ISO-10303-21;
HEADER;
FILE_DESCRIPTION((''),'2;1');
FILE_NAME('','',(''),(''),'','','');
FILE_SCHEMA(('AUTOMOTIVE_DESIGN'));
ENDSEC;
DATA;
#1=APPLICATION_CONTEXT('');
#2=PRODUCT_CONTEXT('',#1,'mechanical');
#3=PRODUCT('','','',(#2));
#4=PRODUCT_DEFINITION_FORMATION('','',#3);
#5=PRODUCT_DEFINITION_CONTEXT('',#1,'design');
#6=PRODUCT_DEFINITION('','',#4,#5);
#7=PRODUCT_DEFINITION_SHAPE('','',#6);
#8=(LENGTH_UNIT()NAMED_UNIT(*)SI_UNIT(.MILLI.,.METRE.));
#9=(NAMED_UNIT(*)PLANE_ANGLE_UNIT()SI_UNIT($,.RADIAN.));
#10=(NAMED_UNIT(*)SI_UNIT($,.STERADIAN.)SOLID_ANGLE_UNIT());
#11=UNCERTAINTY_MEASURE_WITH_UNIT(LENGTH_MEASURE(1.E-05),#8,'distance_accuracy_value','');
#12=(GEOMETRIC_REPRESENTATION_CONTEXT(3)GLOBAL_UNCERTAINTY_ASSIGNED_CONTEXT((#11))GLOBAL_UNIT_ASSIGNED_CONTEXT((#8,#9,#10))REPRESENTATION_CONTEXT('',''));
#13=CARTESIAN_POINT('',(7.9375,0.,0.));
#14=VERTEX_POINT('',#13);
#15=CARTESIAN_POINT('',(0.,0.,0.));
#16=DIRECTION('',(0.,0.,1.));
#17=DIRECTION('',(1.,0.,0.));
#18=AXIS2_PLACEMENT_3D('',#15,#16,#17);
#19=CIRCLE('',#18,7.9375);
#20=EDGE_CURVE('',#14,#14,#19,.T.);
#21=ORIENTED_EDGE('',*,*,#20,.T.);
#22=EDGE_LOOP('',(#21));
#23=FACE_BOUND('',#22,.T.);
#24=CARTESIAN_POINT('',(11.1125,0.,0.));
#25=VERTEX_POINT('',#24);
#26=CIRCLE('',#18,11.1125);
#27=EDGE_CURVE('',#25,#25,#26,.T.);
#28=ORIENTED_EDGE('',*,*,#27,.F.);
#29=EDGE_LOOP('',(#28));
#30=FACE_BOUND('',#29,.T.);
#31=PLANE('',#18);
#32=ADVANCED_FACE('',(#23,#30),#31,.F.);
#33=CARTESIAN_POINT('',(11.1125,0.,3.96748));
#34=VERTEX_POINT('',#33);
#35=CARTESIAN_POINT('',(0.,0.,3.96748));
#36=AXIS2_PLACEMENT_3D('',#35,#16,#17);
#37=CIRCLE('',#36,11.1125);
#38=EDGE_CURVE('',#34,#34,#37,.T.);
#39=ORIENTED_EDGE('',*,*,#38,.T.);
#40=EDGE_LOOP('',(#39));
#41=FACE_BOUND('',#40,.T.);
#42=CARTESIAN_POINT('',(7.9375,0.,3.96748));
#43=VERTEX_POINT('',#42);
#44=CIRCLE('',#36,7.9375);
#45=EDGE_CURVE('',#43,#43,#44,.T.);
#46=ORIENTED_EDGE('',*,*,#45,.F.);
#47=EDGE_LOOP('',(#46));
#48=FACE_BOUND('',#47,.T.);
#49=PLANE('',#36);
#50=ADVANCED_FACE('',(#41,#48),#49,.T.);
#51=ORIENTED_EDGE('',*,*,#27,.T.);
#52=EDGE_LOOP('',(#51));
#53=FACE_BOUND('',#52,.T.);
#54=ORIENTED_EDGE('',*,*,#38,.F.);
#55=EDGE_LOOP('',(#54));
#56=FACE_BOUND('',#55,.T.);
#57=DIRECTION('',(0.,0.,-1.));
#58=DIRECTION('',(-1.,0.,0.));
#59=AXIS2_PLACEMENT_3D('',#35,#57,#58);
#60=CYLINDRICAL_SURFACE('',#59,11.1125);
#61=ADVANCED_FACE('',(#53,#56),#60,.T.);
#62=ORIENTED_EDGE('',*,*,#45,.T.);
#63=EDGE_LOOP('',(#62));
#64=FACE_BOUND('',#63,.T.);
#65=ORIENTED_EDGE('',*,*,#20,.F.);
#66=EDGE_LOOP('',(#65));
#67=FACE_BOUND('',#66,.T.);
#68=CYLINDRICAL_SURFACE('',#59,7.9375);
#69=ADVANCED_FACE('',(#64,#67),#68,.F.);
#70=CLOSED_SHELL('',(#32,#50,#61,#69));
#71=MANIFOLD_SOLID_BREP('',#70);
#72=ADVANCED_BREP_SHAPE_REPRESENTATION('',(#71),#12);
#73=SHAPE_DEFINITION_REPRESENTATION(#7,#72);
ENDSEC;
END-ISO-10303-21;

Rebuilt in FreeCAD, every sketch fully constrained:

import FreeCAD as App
import Part
import Sketcher

V = App.Vector
Q = App.Units.Quantity

doc = App.newDocument("Part")
body = doc.addObject("PartDesign::Body", "Body")

sketch1 = body.newObject("Sketcher::SketchObject", "Sketch")
sketch1.AttachmentSupport = (doc.getObject("XY_Plane"), [""])
sketch1.MapMode = "FlatFace"
sketch1.addGeometry(Part.Circle(V(0, 0, 0), V(0, 0, 1), 11), False)
sketch1.addGeometry(Part.Circle(V(0, 0, 0), V(0, 0, 1), 8), False)
sketch1.addConstraint(Sketcher.Constraint("Coincident", 0, 3, -1, 1))
sketch1.addConstraint(Sketcher.Constraint("Coincident", 1, 3, -1, 1))
sketch1.addConstraint(Sketcher.Constraint("Diameter", 0, Q("0.875 in")))
sketch1.addConstraint(Sketcher.Constraint("Diameter", 1, Q("0.625 in")))
pad1 = body.newObject("PartDesign::Pad", "Pad")
pad1.Profile = sketch1
pad1.Length = Q("0.1562 in")

doc.recompute()
